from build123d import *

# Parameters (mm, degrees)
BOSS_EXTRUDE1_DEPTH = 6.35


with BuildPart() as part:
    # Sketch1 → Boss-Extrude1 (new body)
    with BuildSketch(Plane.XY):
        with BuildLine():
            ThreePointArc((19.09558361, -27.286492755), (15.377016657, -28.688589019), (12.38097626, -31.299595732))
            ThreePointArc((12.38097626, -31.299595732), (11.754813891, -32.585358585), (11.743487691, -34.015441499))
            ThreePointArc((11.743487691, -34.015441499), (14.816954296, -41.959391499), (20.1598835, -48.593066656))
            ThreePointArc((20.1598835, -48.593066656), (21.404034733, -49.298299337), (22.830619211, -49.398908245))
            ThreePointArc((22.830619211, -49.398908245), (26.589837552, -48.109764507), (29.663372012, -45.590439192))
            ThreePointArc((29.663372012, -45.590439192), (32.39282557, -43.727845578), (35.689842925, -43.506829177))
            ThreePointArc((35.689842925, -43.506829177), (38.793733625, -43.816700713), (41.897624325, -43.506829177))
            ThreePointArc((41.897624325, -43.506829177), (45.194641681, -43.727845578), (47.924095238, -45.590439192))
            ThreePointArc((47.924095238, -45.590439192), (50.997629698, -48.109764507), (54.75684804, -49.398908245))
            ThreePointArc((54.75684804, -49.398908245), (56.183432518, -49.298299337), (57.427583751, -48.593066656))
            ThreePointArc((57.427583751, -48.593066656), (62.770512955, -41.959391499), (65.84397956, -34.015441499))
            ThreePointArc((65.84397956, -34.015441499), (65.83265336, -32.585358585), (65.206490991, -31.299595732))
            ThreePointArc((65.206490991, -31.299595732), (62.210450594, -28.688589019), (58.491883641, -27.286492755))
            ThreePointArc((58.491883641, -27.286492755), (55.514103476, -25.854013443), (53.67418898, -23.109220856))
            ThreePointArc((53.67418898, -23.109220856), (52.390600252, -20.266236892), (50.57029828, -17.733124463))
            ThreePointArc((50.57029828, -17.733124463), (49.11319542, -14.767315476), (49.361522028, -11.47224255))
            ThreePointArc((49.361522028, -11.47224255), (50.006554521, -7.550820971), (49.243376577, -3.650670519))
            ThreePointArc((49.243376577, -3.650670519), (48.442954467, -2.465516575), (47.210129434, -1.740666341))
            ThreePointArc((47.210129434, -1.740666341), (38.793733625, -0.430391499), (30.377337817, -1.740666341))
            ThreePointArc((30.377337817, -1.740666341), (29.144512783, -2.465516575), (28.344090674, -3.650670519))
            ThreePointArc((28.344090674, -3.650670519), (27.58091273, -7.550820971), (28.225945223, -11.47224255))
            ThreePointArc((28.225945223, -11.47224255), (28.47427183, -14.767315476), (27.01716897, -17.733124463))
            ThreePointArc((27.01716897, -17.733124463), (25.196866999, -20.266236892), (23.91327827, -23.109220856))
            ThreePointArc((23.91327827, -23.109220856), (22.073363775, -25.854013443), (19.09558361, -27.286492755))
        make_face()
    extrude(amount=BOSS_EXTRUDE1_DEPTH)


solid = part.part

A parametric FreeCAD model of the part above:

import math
import FreeCAD as App
import Part
import Sketcher
from FreeCAD import Vector
Q = App.Units.Quantity

doc = App.newDocument("Part")
params = doc.addObject("Spreadsheet::Sheet", "Params")
for row, (alias, value) in enumerate([
    ("sketch1_radius", "1.09 in"),
    ("pad1_length", "0.25 in"),
], start=1):
    params.set(f"A{row}", alias)
    params.set(f"B{row}", "=" + value)
    params.setAlias(f"B{row}", alias)

body = doc.addObject("PartDesign::Body", "Body")

sketch1 = doc.addObject("Sketcher::SketchObject", "Sketch")
body.addObject(sketch1)
sketch1.AttachmentSupport = (doc.XY_Plane, [""])
sketch1.MapMode = "FlatFace"
sketch1.addGeometry([
    Part.ArcOfCircle(Part.Circle(Vector(21.1, -38.3, 0), Vector(0, 0, 1), 11.2), math.radians(100), math.radians(141)),
    Part.ArcOfCircle(Part.Circle(Vector(14.9, -33.3, 0), Vector(0, 0, 1), 3.2), math.radians(141), math.radians(192)),
    Part.ArcOfCircle(Part.Circle(Vector(38.8, -28.1, 0), Vector(0, 0, 1), 27.7), math.radians(-168), math.radians(-132)),
    Part.ArcOfCircle(Part.Circle(Vector(22.3, -46.2, 0), Vector(0, 0, 1), 3.2), math.radians(-132), math.radians(-81)),
    Part.ArcOfCircle(Part.Circle(Vector(21.1, -38.3, 0), Vector(0, 0, 1), 11.2), math.radians(-81), math.radians(-40)),
    Part.ArcOfCircle(Part.Circle(Vector(34.4, -49.7, 0), Vector(0, 0, 1), 6.3), math.radians(79), math.radians(140)),
    Part.ArcOfCircle(Part.Circle(Vector(38.8, -28.1, 0), Vector(0, 0, 1), 15.7), math.radians(-101), math.radians(-79)),
    Part.ArcOfCircle(Part.Circle(Vector(43.1, -49.7, 0), Vector(0, 0, 1), 6.3), math.radians(40), math.radians(101)),
    Part.ArcOfCircle(Part.Circle(Vector(56.5, -38.3, 0), Vector(0, 0, 1), 11.2), math.radians(-140), math.radians(-99)),
    Part.ArcOfCircle(Part.Circle(Vector(55.2, -46.2, 0), Vector(0, 0, 1), 3.2), math.radians(-99), math.radians(-48)),
    Part.ArcOfCircle(Part.Circle(Vector(38.8, -28.1, 0), Vector(0, 0, 1), 27.7), math.radians(-48), math.radians(-12)),
    Part.ArcOfCircle(Part.Circle(Vector(62.7, -33.3, 0), Vector(0, 0, 1), 3.2), math.radians(-12), math.radians(39)),
    Part.ArcOfCircle(Part.Circle(Vector(56.5, -38.3, 0), Vector(0, 0, 1), 11.2), math.radians(39), math.radians(80)),
    Part.ArcOfCircle(Part.Circle(Vector(59.6, -21.1, 0), Vector(0, 0, 1), 6.3), math.radians(-161), math.radians(-100)),
    Part.ArcOfCircle(Part.Circle(Vector(38.8, -28.1, 0), Vector(0, 0, 1), 15.7), math.radians(19), math.radians(41)),
    Part.ArcOfCircle(Part.Circle(Vector(55.3, -13.6, 0), Vector(0, 0, 1), 6.3), math.radians(160), math.radians(221)),
    Part.ArcOfCircle(Part.Circle(Vector(38.8, -7.7, 0), Vector(0, 0, 1), 11.2), math.radians(-20), math.radians(21)),
    Part.ArcOfCircle(Part.Circle(Vector(46.2, -4.8, 0), Vector(0, 0, 1), 3.2), math.radians(21), math.radians(72)),
    Part.ArcOfCircle(Part.Circle(Vector(38.8, -28.1, 0), Vector(0, 0, 1), 27.7), math.radians(72), math.radians(108)),
    Part.ArcOfCircle(Part.Circle(Vector(31.4, -4.8, 0), Vector(0, 0, 1), 3.2), math.radians(108), math.radians(159)),
    Part.ArcOfCircle(Part.Circle(Vector(38.8, -7.7, 0), Vector(0, 0, 1), 11.2), math.radians(159), math.radians(200)),
    Part.ArcOfCircle(Part.Circle(Vector(22.3, -13.6, 0), Vector(0, 0, 1), 6.3), math.radians(-41), math.radians(20)),
    Part.ArcOfCircle(Part.Circle(Vector(38.8, -28.1, 0), Vector(0, 0, 1), 15.7), math.radians(139), math.radians(161)),
    Part.ArcOfCircle(Part.Circle(Vector(18, -21.1, 0), Vector(0, 0, 1), 6.3), math.radians(-80), math.radians(-19)),
], False)
sketch1.addConstraint([
    Sketcher.Constraint("Tangent", 0, 2, 1, 1),
    Sketcher.Constraint("Tangent", 1, 2, 2, 1),
    Sketcher.Constraint("Tangent", 2, 2, 3, 1),
    Sketcher.Constraint("Tangent", 3, 2, 4, 1),
    Sketcher.Constraint("Tangent", 4, 2, 5, 2),
    Sketcher.Constraint("Tangent", 5, 1, 6, 1),
    Sketcher.Constraint("Tangent", 6, 2, 7, 2),
    Sketcher.Constraint("Tangent", 7, 1, 8, 1),
    Sketcher.Constraint("Tangent", 8, 2, 9, 1),
    Sketcher.Constraint("Tangent", 9, 2, 10, 1),
    Sketcher.Constraint("Tangent", 10, 2, 11, 1),
    Sketcher.Constraint("Tangent", 11, 2, 12, 1),
    Sketcher.Constraint("Tangent", 12, 2, 13, 2),
    Sketcher.Constraint("Tangent", 13, 1, 14, 1),
    Sketcher.Constraint("Tangent", 14, 2, 15, 2),
    Sketcher.Constraint("Tangent", 15, 1, 16, 1),
    Sketcher.Constraint("Tangent", 16, 2, 17, 1),
    Sketcher.Constraint("Tangent", 17, 2, 18, 1),
    Sketcher.Constraint("Tangent", 18, 2, 19, 1),
    Sketcher.Constraint("Tangent", 19, 2, 20, 1),
    Sketcher.Constraint("Tangent", 20, 2, 21, 2),
    Sketcher.Constraint("Tangent", 21, 1, 22, 1),
    Sketcher.Constraint("Tangent", 22, 2, 23, 2),
    Sketcher.Constraint("Tangent", 23, 1, 0, 1),
    Sketcher.Constraint("Coincident", 4, 3, 0, 3),
    Sketcher.Constraint("Coincident", 6, 3, 2, 3),
    Sketcher.Constraint("Coincident", 10, 3, 2, 3),
    Sketcher.Constraint("Coincident", 12, 3, 8, 3),
    Sketcher.Constraint("Coincident", 14, 3, 2, 3),
    Sketcher.Constraint("Coincident", 18, 3, 2, 3),
    Sketcher.Constraint("Coincident", 20, 3, 16, 3),
    Sketcher.Constraint("Coincident", 22, 3, 2, 3),
    Sketcher.Constraint("Equal", 1, 3),
    Sketcher.Constraint("Equal", 0, 4),
    Sketcher.Constraint("Equal", 5, 7),
    Sketcher.Constraint("Equal", 4, 8),
    Sketcher.Constraint("Equal", 3, 9),
    Sketcher.Constraint("Equal", 2, 10),
    Sketcher.Constraint("Equal", 9, 11),
    Sketcher.Constraint("Equal", 8, 12),
    Sketcher.Constraint("Equal", 7, 13),
    Sketcher.Constraint("Equal", 6, 14),
    Sketcher.Constraint("Equal", 13, 15),
    Sketcher.Constraint("Equal", 12, 16),
    Sketcher.Constraint("Equal", 11, 17),
    Sketcher.Constraint("Equal", 10, 18),
    Sketcher.Constraint("Equal", 17, 19),
    Sketcher.Constraint("Equal", 16, 20),
    Sketcher.Constraint("Equal", 15, 21),
    Sketcher.Constraint("Equal", 14, 22),
    Sketcher.Constraint("Equal", 21, 23),
    Sketcher.Constraint("Horizontal", 5, 3, 7, 3),
    Sketcher.Constraint("Horizontal", 4, 3, 8, 3),
    Sketcher.Constraint("Horizontal", 17, 3, 19, 3),
    Sketcher.Constraint("Radius", 2, Q("1.09 in")),
    Sketcher.Constraint("Radius", 0, Q("0.4415 in")),
    Sketcher.Constraint("Radius", 1, Q("0.1275 in")),
    Sketcher.Constraint("Radius", 5, Q("0.2475 in")),
    Sketcher.Constraint("Radius", 6, 15.700309),
    Sketcher.Constraint("DistanceY", 14, 3, 16, 3, Q("0.803 in")),
    Sketcher.Constraint("DistanceY", 0, 3, 2, 3, Q("0.4015 in")),
    Sketcher.Constraint("DistanceY", 15, 3, -1, 1, 13.575601),
    Sketcher.Constraint("DistanceX", -1, 1, 14, 2, 50.570298),
    Sketcher.Constraint("DistanceX", 5, 1, 7, 3, 7.450598),
])
sketch1.setExpression("Constraints[54]", "Params.sketch1_radius")
pad1 = doc.addObject("PartDesign::Pad", "Pad")
body.addObject(pad1)
pad1.Profile = sketch1
pad1.setExpression("Length", "Params.pad1_length")

doc.recompute()
